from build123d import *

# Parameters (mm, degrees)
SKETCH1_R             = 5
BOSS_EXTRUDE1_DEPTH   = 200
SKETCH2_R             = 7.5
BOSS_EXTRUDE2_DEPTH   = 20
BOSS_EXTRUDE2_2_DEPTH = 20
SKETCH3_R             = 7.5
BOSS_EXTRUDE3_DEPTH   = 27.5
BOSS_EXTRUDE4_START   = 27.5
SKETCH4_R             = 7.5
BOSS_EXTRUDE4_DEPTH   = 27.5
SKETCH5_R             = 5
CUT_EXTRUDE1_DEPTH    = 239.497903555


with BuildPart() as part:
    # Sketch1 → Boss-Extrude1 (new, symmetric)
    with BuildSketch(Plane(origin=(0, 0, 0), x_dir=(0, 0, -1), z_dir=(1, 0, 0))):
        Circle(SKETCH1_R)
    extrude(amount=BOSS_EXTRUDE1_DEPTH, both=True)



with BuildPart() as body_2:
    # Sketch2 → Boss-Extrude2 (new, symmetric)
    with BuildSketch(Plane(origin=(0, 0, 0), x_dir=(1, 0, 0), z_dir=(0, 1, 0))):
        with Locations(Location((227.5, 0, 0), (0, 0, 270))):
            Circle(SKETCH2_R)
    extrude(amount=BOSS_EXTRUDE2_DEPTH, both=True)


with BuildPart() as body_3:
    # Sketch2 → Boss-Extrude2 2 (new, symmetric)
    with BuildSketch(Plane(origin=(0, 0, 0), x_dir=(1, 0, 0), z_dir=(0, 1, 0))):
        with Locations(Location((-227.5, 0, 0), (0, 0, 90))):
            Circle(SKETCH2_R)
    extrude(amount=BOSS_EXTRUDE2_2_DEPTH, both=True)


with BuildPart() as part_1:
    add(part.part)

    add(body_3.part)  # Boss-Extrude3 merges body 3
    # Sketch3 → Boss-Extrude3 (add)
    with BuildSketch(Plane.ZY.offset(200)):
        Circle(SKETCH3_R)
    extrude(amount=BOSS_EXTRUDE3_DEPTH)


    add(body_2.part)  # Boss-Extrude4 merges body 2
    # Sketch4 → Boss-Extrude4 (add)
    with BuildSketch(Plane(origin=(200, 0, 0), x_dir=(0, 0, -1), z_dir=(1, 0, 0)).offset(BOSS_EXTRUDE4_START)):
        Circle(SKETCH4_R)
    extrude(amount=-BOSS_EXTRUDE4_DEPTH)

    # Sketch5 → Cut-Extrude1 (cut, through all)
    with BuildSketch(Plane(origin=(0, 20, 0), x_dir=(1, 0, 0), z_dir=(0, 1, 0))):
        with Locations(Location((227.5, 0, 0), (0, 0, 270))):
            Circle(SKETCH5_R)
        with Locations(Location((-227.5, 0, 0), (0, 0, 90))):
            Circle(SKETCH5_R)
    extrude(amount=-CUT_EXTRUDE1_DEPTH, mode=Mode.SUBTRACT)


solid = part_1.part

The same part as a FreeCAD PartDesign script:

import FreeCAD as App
import Part
import Sketcher
from FreeCAD import Vector

doc = App.newDocument("Part")
body = doc.addObject("PartDesign::Body", "Body")

# Sketch on YZ plane
sketch1 = body.newObject("Sketcher::SketchObject", "Sketch")
sketch1.AttachmentSupport = (doc.getObject("YZ_Plane"), [""])
sketch1.MapMode = "FlatFace"
sketch1.addGeometry(Part.Circle(Vector(0, 0, 0), Vector(0, 0, 1), 5), False)
sketch1.addConstraint([
    Sketcher.Constraint("Coincident", 0, 3, -1, 1),
    Sketcher.Constraint("Diameter", 0, 10.0),
])
pad1 = body.newObject("PartDesign::Pad", "Pad")
pad1.Profile = sketch1
pad1.Length = 400
pad1.Midplane = True
body2 = doc.addObject("PartDesign::Body", "Body001")

# Sketch on XZ plane
sketch2 = body2.newObject("Sketcher::SketchObject", "Sketch001")
sketch2.AttachmentSupport = (doc.getObject("XZ_Plane001"), [""])
sketch2.MapMode = "FlatFace"
sketch2.addGeometry(Part.Circle(Vector(228, 0, 0), Vector(0, 0, 1), 8), False)
sketch2.addConstraint([
    Sketcher.Constraint("PointOnObject", 0, 3, -1),
    Sketcher.Constraint("Diameter", 0, 15.0),
    Sketcher.Constraint("DistanceX", -1, 1, 0, 3, 227.5),
])
pad2 = body2.newObject("PartDesign::Pad", "Pad001")
pad2.Profile = sketch2
pad2.Length = 40
pad2.Midplane = True
body3 = doc.addObject("PartDesign::Body", "Body002")

# Sketch on XZ plane
sketch3 = body3.newObject("Sketcher::SketchObject", "Sketch002")
sketch3.AttachmentSupport = (doc.getObject("XZ_Plane002"), [""])
sketch3.MapMode = "FlatFace"
sketch3.addGeometry(Part.Circle(Vector(-228, 0, 0), Vector(0, 0, 1), 8), False)
sketch3.addConstraint([
    Sketcher.Constraint("PointOnObject", 0, 3, -1),
    Sketcher.Constraint("Diameter", 0, 15.0),
    Sketcher.Constraint("DistanceX", 0, 3, -1, 1, 227.5),
])
pad3 = body3.newObject("PartDesign::Pad", "Pad002")
pad3.Profile = sketch3
pad3.Length = 40
pad3.Midplane = True
body.AllowCompound = True
doc.recompute()

boolean = body.newObject("PartDesign::Boolean", "Boolean")
boolean.Type = "Fuse"
boolean.addObjects([body3])

# Sketch on YZ plane
sketch4 = body.newObject("Sketcher::SketchObject", "Sketch003")
sketch4.AttachmentSupport = (doc.getObject("YZ_Plane"), [""])
sketch4.MapMode = "FlatFace"
sketch4.AttachmentOffset = App.Placement(Vector(0, 0, -200), App.Rotation())
sketch4.addGeometry(Part.Circle(Vector(0, 0, 0), Vector(0, 0, 1), 8), False)
sketch4.addConstraint([
    Sketcher.Constraint("Coincident", 0, 3, -1, 1),
    Sketcher.Constraint("Diameter", 0, 15.0),
])
pad4 = body.newObject("PartDesign::Pad", "Pad003")
pad4.Profile = sketch4
pad4.Length = 27.5
pad4.Reversed = True
doc.recompute()

boolean2 = body.newObject("PartDesign::Boolean", "Boolean001")
boolean2.Type = "Fuse"
boolean2.addObjects([body2])

# Sketch on YZ plane
sketch5 = body.newObject("Sketcher::SketchObject", "Sketch004")
sketch5.AttachmentSupport = (doc.getObject("YZ_Plane"), [""])
sketch5.MapMode = "FlatFace"
sketch5.AttachmentOffset = App.Placement(Vector(0, 0, 227.5), App.Rotation())
sketch5.addGeometry(Part.Circle(Vector(0, 0, 0), Vector(0, 0, 1), 8), False)
sketch5.addConstraint([
    Sketcher.Constraint("Coincident", 0, 3, -1, 1),
    Sketcher.Constraint("Diameter", 0, 15.0),
])
pad5 = body.newObject("PartDesign::Pad", "Pad004")
pad5.Profile = sketch5
pad5.Length = 27.5
pad5.Reversed = True

# Sketch on XZ plane
sketch6 = body.newObject("Sketcher::SketchObject", "Sketch005")
sketch6.AttachmentSupport = (doc.getObject("XZ_Plane"), [""])
sketch6.MapMode = "FlatFace"
sketch6.AttachmentOffset = App.Placement(Vector(0, 0, -20), App.Rotation())
sketch6.addGeometry([
    Part.Circle(Vector(228, 0, 0), Vector(0, 0, 1), 5),
    Part.Circle(Vector(-228, 0, 0), Vector(0, 0, 1), 5),
], False)
sketch6.addConstraint([
    Sketcher.Constraint("Equal", 0, 1),
    Sketcher.Constraint("Symmetric", 0, 3, 1, 3, -1, 1),
    Sketcher.Constraint("PointOnObject", 0, 3, -1),
    Sketcher.Constraint("Diameter", 0, 10.0),
    Sketcher.Constraint("DistanceX", 1, 3, 0, 3, 455.0),
])
pocket1 = body.newObject("PartDesign::Pocket", "Pocket")
pocket1.Profile = sketch6
pocket1.Type = "ThroughAll"
pocket1.Reversed = True

doc.recompute()
